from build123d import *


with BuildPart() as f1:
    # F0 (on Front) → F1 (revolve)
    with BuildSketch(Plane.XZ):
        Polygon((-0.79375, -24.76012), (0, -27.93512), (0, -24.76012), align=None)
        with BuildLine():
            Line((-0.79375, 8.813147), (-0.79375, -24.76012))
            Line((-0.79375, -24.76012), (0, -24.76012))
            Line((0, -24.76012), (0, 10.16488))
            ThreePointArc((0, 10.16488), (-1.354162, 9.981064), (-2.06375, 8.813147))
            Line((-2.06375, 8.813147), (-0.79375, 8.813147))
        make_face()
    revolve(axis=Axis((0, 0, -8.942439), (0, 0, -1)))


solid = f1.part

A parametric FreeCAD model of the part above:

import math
import FreeCAD as App
import Part
import Sketcher
Q = App.Units.Quantity

doc = App.newDocument("Part")
params = doc.addObject("Spreadsheet::Sheet", "Params")
for row, (alias, value) in enumerate([
    ("sketch1_height", "1.5 in"),
    ("sketch1_radius", "0.0625 in"),
    ("sketch1_width", "0.05 in"),
    ("revolution_angle", "360 deg"),
], start=1):
    params.set(f"A{row}", alias)
    params.set(f"B{row}", "=" + value)
    params.setAlias(f"B{row}", alias)

body = doc.addObject("PartDesign::Body", "Body")

sketch1 = doc.addObject("Sketcher::SketchObject", "Sketch")
body.addObject(sketch1)
sketch1.AttachmentSupport = (doc.XZ_Plane, [""])
sketch1.MapMode = "FlatFace"
sketch1.addGeometry([
    Part.LineSegment(App.Vector(-0.8, -24.8, 0), App.Vector(0, -27.9, 0)),
    Part.LineSegment(App.Vector(0, -27.9, 0), App.Vector(0, 10.2, 0)),
    Part.ArcOfCircle(Part.Circle(App.Vector(-0.5, 8.7, 0), App.Vector(0, 0, 1), 1.6), math.radians(72), math.radians(174)),
    Part.LineSegment(App.Vector(-2.1, 8.8, 0), App.Vector(-0.8, 8.8, 0)),
    Part.LineSegment(App.Vector(-0.8, 8.8, 0), App.Vector(-0.8, -24.8, 0)),
], False)
sketch1.addConstraint([
    Sketcher.Constraint("Coincident", 0, 2, 1, 1),
    Sketcher.Constraint("Coincident", 1, 2, 2, 1),
    Sketcher.Constraint("Coincident", 2, 2, 3, 1),
    Sketcher.Constraint("Coincident", 3, 2, 4, 1),
    Sketcher.Constraint("Coincident", 4, 2, 0, 1),
    Sketcher.Constraint("Vertical", 1),
    Sketcher.Constraint("Horizontal", 3),
    Sketcher.Constraint("Vertical", 4),
    Sketcher.Constraint("PointOnObject", 0, 2, -2),
    Sketcher.Constraint("DistanceY", 1, 1, 1, 2, Q("1.5 in")),
    Sketcher.Constraint("Radius", 2, Q("0.0625 in")),
    Sketcher.Constraint("DistanceX", 3, 1, 3, 2, Q("0.05 in")),
    Sketcher.Constraint("DistanceX", 3, 2, -1, 1, Q("0.03125 in")),
    Sketcher.Constraint("DistanceY", 0, 2, 4, 2, Q("0.125 in")),
    Sketcher.Constraint("DistanceY", 4, 2, 4, 1, 33.573267),
    Sketcher.Constraint("DistanceY", -1, 1, 2, 3, 8.65307),
])
sketch1.setExpression("Constraints[9]", "Params.sketch1_height")
sketch1.setExpression("Constraints[10]", "Params.sketch1_radius")
sketch1.setExpression("Constraints[11]", "Params.sketch1_width")
revolution = doc.addObject("PartDesign::Revolution", "Revolution")
body.addObject(revolution)
revolution.Profile = sketch1
revolution.ReferenceAxis = (sketch1, ["V_Axis"])
revolution.setExpression("Angle", "Params.revolution_angle")

doc.recompute()
